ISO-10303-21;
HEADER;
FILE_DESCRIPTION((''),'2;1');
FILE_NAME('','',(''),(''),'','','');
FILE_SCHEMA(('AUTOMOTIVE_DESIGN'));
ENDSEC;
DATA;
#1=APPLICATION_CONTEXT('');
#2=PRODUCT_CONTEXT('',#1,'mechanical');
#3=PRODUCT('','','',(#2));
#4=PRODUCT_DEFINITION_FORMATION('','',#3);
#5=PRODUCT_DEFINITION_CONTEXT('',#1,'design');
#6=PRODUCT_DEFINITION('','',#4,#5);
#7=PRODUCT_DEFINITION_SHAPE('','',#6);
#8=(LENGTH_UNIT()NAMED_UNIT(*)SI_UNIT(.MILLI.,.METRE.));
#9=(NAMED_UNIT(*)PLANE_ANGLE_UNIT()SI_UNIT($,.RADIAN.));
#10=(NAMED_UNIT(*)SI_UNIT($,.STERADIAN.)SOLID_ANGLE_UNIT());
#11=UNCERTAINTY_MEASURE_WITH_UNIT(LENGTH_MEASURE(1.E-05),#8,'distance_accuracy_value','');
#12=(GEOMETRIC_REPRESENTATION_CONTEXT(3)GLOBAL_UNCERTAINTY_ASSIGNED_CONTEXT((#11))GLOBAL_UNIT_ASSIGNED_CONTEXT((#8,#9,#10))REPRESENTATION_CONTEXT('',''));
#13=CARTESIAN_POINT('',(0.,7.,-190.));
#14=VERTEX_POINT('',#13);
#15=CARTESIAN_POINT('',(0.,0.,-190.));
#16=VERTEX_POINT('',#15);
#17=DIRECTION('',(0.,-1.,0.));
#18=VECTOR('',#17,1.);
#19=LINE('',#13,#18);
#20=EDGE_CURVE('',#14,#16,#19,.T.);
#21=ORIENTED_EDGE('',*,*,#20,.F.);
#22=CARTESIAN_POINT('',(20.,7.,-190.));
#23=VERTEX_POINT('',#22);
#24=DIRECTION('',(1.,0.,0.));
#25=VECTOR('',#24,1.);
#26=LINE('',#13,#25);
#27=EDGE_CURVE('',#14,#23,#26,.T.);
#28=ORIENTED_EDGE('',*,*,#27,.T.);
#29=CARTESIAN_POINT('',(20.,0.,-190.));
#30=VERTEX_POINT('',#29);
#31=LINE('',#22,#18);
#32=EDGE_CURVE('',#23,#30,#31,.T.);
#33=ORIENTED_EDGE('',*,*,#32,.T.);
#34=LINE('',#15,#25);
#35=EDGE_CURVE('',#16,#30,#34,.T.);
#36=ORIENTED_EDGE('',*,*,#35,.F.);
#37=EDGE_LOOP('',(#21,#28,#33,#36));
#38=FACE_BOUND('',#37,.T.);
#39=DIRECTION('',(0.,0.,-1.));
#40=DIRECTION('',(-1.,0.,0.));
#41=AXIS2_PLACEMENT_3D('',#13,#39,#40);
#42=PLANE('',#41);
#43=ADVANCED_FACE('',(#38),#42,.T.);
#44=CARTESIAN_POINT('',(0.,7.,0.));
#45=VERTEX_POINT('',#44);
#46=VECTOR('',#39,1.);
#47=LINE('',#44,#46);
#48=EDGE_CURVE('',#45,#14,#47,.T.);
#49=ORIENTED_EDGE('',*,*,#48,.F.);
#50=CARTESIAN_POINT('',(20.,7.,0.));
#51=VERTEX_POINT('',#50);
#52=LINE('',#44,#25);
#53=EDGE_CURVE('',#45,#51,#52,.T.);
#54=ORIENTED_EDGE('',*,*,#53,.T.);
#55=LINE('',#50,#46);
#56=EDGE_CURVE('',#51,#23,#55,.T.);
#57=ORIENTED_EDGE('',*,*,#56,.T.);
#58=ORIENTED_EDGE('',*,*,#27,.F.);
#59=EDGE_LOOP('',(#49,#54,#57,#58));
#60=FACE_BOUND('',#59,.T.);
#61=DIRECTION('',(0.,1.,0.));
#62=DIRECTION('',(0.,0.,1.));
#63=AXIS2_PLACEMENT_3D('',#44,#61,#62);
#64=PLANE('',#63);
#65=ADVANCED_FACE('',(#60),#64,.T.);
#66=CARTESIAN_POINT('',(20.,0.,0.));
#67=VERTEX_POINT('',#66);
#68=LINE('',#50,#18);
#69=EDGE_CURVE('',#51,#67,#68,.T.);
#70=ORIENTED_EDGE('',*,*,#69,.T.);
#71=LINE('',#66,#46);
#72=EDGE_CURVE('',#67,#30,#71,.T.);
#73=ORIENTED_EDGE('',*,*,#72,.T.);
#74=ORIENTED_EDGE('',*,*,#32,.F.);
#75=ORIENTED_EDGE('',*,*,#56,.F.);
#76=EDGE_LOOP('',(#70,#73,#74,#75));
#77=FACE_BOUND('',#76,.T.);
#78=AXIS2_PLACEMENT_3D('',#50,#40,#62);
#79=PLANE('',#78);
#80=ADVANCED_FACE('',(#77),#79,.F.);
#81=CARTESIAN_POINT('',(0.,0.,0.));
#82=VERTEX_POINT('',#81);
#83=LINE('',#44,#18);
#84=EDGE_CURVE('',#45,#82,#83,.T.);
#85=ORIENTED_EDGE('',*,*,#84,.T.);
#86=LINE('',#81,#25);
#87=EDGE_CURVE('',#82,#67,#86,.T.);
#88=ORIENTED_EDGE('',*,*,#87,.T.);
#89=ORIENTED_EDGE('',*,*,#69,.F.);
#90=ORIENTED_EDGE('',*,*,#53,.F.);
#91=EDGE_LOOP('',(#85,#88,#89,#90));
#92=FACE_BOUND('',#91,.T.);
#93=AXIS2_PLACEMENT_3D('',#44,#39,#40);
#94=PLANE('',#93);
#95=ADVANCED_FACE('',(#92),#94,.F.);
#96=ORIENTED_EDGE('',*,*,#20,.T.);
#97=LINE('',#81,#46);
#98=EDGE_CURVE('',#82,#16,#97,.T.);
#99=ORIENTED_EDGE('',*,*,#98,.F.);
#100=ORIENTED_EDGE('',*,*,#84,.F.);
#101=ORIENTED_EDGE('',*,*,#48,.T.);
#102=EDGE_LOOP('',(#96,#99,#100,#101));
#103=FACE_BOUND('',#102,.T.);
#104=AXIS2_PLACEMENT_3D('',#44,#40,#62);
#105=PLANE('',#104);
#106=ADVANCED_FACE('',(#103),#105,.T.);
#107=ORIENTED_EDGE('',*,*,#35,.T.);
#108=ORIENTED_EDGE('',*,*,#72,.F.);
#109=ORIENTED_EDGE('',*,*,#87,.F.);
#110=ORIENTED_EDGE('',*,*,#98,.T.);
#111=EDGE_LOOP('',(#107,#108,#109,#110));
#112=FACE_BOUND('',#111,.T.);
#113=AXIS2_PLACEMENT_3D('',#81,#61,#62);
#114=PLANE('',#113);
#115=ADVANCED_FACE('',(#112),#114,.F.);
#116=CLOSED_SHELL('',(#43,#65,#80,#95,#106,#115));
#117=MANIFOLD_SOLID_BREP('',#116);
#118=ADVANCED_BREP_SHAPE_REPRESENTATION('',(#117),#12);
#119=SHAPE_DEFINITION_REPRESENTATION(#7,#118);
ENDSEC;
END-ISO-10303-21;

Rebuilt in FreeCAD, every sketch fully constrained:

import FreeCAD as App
import Part
import Sketcher
from FreeCAD import Vector
Q = App.Units.Quantity

doc = App.newDocument("Part")
params = doc.addObject("Spreadsheet::Sheet", "Params")
for row, (alias, value) in enumerate([
    ("sketch1_width", "20 mm"),
    ("sketch1_height", "190 mm"),
    ("pad1_length", "7 mm"),
], start=1):
    params.set(f"A{row}", alias)
    params.set(f"B{row}", "=" + value)
    params.setAlias(f"B{row}", alias)

body = doc.addObject("PartDesign::Body", "Body")

# Sketch on XZ plane
sketch1 = body.newObject("Sketcher::SketchObject", "Sketch")
sketch1.AttachmentSupport = (doc.getObject("XZ_Plane"), [""])
sketch1.MapMode = "FlatFace"
sketch1.addGeometry(Part.LineSegment(Vector(0, -190, 0), Vector(0, 0, 0)), False)
sketch1.addGeometry(Part.LineSegment(Vector(0, 0, 0), Vector(20, 0, 0)), False)
sketch1.addGeometry(Part.LineSegment(Vector(20, 0, 0), Vector(20, -190, 0)), False)
sketch1.addGeometry(Part.LineSegment(Vector(20, -190, 0), Vector(0, -190, 0)), False)
sketch1.addConstraint(Sketcher.Constraint("Coincident", 0, 2, 1, 1))
sketch1.addConstraint(Sketcher.Constraint("Coincident", 1, 2, 2, 1))
sketch1.addConstraint(Sketcher.Constraint("Coincident", 2, 2, 3, 1))
sketch1.addConstraint(Sketcher.Constraint("Coincident", 3, 2, 0, 1))
sketch1.addConstraint(Sketcher.Constraint("Vertical", 0))
sketch1.addConstraint(Sketcher.Constraint("Horizontal", 1))
sketch1.addConstraint(Sketcher.Constraint("Vertical", 2))
sketch1.addConstraint(Sketcher.Constraint("Horizontal", 3))
sketch1.addConstraint(Sketcher.Constraint("Coincident", 0, 2, -1, 1))
sketch1.addConstraint(Sketcher.Constraint("DistanceX", 1, 1, 1, 2, Q("20 mm")))
sketch1.addConstraint(Sketcher.Constraint("DistanceY", 0, 1, 0, 2, Q("190 mm")))
sketch1.setExpression("Constraints[9]", "Params.sketch1_width")
sketch1.setExpression("Constraints[10]", "Params.sketch1_height")
pad1 = body.newObject("PartDesign::Pad", "Pad")
pad1.Profile = sketch1
pad1.setExpression("Length", "Params.pad1_length")
pad1.Reversed = True

doc.recompute()
